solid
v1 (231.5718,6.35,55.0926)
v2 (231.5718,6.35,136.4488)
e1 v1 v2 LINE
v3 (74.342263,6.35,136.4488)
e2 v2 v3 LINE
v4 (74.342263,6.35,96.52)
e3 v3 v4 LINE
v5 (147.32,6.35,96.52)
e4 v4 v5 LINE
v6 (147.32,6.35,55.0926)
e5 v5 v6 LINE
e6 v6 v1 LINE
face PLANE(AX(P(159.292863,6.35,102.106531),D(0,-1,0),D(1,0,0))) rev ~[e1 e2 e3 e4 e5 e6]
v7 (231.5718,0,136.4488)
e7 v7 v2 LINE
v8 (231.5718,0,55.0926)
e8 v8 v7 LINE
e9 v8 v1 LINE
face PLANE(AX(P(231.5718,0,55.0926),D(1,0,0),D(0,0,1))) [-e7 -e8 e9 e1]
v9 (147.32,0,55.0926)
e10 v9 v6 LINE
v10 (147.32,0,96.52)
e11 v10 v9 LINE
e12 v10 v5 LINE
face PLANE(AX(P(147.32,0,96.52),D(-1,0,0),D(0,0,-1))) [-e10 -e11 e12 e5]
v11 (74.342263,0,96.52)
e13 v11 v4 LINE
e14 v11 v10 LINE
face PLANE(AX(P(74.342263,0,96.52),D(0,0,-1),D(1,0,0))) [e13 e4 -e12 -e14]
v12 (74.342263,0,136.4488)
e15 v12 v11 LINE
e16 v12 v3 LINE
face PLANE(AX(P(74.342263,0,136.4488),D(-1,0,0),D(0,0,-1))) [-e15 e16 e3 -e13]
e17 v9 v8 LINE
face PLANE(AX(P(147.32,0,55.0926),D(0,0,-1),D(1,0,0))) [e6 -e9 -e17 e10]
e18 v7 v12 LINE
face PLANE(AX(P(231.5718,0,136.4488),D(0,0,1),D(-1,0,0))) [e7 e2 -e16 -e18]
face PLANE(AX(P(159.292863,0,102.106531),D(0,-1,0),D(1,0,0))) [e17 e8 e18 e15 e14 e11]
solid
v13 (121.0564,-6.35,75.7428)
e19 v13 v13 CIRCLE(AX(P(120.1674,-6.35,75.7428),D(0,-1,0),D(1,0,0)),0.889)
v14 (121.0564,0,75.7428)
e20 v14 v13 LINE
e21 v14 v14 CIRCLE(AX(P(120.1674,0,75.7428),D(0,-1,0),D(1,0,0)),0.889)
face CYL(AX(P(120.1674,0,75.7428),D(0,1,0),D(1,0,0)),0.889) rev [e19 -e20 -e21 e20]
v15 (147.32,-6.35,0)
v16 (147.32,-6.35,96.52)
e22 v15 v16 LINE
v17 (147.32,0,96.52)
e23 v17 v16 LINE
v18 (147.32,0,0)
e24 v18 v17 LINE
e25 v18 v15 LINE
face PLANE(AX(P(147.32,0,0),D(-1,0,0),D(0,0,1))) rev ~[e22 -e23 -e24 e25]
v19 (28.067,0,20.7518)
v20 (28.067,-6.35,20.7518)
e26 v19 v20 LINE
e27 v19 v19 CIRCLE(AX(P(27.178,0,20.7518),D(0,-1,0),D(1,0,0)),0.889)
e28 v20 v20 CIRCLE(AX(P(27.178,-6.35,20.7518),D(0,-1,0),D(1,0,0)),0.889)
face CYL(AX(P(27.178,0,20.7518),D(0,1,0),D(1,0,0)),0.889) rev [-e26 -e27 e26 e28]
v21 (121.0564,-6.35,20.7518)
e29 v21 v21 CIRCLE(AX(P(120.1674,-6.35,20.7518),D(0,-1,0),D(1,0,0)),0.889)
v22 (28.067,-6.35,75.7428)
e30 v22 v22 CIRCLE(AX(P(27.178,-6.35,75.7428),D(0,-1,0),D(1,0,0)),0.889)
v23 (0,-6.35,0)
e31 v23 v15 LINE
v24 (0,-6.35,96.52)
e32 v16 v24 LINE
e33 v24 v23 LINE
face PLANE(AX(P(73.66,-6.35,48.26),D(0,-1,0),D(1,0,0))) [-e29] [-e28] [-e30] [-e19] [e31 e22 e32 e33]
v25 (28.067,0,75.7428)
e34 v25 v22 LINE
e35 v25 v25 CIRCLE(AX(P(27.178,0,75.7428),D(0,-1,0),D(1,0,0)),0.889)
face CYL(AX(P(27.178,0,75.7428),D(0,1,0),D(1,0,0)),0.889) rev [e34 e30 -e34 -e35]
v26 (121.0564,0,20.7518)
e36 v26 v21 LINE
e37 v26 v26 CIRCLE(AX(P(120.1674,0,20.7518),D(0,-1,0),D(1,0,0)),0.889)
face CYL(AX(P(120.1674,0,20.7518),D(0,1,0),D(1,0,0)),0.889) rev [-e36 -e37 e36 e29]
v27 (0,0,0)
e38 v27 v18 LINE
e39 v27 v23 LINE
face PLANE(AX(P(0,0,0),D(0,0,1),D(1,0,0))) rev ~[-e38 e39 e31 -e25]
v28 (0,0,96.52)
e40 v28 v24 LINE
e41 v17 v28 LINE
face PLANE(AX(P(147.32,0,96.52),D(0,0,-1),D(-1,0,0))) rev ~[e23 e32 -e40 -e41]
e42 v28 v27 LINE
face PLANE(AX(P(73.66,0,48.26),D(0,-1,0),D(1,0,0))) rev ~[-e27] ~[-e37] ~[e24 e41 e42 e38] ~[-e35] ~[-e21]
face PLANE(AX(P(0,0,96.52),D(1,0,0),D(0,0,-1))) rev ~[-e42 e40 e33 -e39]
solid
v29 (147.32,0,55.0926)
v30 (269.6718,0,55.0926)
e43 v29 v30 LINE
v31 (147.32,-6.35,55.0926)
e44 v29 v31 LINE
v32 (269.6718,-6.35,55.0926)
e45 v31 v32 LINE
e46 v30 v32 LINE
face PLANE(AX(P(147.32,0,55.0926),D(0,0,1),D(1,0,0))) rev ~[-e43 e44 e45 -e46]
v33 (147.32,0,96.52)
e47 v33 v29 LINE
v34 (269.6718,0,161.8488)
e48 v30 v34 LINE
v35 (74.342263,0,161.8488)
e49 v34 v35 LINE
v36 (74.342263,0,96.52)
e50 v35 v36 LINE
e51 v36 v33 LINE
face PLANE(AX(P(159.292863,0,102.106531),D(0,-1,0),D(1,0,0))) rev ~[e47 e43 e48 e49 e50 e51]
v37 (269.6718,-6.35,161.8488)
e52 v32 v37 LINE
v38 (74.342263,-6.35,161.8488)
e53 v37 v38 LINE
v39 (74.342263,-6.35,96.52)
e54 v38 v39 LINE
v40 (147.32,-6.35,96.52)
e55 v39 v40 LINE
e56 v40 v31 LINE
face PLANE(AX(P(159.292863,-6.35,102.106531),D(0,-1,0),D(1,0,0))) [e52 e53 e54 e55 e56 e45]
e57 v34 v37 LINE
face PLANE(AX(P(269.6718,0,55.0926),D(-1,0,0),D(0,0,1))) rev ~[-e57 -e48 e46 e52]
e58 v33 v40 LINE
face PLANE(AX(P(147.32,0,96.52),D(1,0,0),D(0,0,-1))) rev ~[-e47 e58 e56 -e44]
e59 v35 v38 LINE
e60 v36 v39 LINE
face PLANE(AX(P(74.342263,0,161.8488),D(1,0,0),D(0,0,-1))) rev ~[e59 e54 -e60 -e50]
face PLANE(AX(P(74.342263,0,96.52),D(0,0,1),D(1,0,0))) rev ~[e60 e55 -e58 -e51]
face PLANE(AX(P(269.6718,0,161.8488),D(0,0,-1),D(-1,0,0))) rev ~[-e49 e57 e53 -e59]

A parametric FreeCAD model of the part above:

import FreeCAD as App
import Part
import Sketcher

V = App.Vector
Q = App.Units.Quantity

doc = App.newDocument("Part")
body = doc.addObject("PartDesign::Body", "Body")

# Sketch on XZ plane
sketch1 = body.newObject("Sketcher::SketchObject", "Sketch")
sketch1.AttachmentSupport = (doc.getObject("XZ_Plane"), [""])
sketch1.MapMode = "FlatFace"
sketch1.addGeometry(Part.LineSegment(V(0, 0, 0), V(147.3, 0, 0)), False)
sketch1.addGeometry(Part.LineSegment(V(147.3, 0, 0), V(147.3, 96.5, 0)), False)
sketch1.addGeometry(Part.LineSegment(V(147.3, 96.5, 0), V(0, 96.5, 0)), False)
sketch1.addGeometry(Part.LineSegment(V(0, 96.5, 0), V(0, 0, 0)), False)
sketch1.addGeometry(Part.Circle(V(27.2, 20.8, 0), V(0, 0, 1), 0.9), False)
sketch1.addGeometry(Part.Circle(V(120.2, 20.8, 0), V(0, 0, 1), 0.9), False)
sketch1.addGeometry(Part.Circle(V(27.2, 75.7, 0), V(0, 0, 1), 0.9), False)
sketch1.addGeometry(Part.Circle(V(120.2, 75.7, 0), V(0, 0, 1), 0.9), False)
sketch1.addConstraint(Sketcher.Constraint("Coincident", 0, 2, 1, 1))
sketch1.addConstraint(Sketcher.Constraint("Coincident", 1, 2, 2, 1))
sketch1.addConstraint(Sketcher.Constraint("Coincident", 2, 2, 3, 1))
sketch1.addConstraint(Sketcher.Constraint("Coincident", 3, 2, 0, 1))
sketch1.addConstraint(Sketcher.Constraint("Horizontal", 0))
sketch1.addConstraint(Sketcher.Constraint("Vertical", 1))
sketch1.addConstraint(Sketcher.Constraint("Horizontal", 2))
sketch1.addConstraint(Sketcher.Constraint("Vertical", 3))
sketch1.addConstraint(Sketcher.Constraint("Coincident", 3, 2, -1, 1))
sketch1.addConstraint(Sketcher.Constraint("Equal", 4, 5))
sketch1.addConstraint(Sketcher.Constraint("Equal", 5, 6))
sketch1.addConstraint(Sketcher.Constraint("Equal", 6, 7))
sketch1.addConstraint(Sketcher.Constraint("Horizontal", 4, 3, 5, 3))
sketch1.addConstraint(Sketcher.Constraint("Horizontal", 6, 3, 7, 3))
sketch1.addConstraint(Sketcher.Constraint("Vertical", 4, 3, 6, 3))
sketch1.addConstraint(Sketcher.Constraint("Vertical", 5, 3, 7, 3))
sketch1.addConstraint(Sketcher.Constraint("Diameter", 4, Q("0.07 in")))
sketch1.addConstraint(Sketcher.Constraint("DistanceX", 0, 1, 0, 2, Q("5.8 in")))
sketch1.addConstraint(Sketcher.Constraint("DistanceY", 1, 1, 1, 2, Q("3.8 in")))
sketch1.addConstraint(Sketcher.Constraint("DistanceX", -1, 1, 4, 3, Q("1.07 in")))
sketch1.addConstraint(Sketcher.Constraint("DistanceY", -1, 1, 4, 3, Q("0.817 in")))
sketch1.addConstraint(Sketcher.Constraint("DistanceX", -1, 1, 5, 3, Q("4.731 in")))
sketch1.addConstraint(Sketcher.Constraint("DistanceY", -1, 1, 6, 3, Q("2.982 in")))
pad1 = body.newObject("PartDesign::Pad", "Pad")
pad1.Profile = sketch1
pad1.Length = Q("0.25 in")
body2 = doc.addObject("PartDesign::Body", "Body001")

# Sketch on XZ plane
sketch2 = body2.newObject("Sketcher::SketchObject", "Sketch001")
sketch2.AttachmentSupport = (doc.getObject("XZ_Plane001"), [""])
sketch2.MapMode = "FlatFace"
sketch2.addGeometry(Part.LineSegment(V(74, 97, 0), V(147, 97, 0)), False)
sketch2.addGeometry(Part.LineSegment(V(147, 97, 0), V(147, 55, 0)), False)
sketch2.addGeometry(Part.LineSegment(V(147, 55, 0), V(270, 55, 0)), False)
sketch2.addGeometry(Part.LineSegment(V(270, 55, 0), V(270, 162, 0)), False)
sketch2.addGeometry(Part.LineSegment(V(270, 162, 0), V(74, 162, 0)), False)
sketch2.addGeometry(Part.LineSegment(V(74, 162, 0), V(74, 97, 0)), False)
sketch2.addConstraint(Sketcher.Constraint("Coincident", 0, 2, 1, 1))
sketch2.addConstraint(Sketcher.Constraint("Coincident", 1, 2, 2, 1))
sketch2.addConstraint(Sketcher.Constraint("Coincident", 2, 2, 3, 1))
sketch2.addConstraint(Sketcher.Constraint("Coincident", 3, 2, 4, 1))
sketch2.addConstraint(Sketcher.Constraint("Coincident", 4, 2, 5, 1))
sketch2.addConstraint(Sketcher.Constraint("Coincident", 5, 2, 0, 1))
sketch2.addConstraint(Sketcher.Constraint("Horizontal", 0))
sketch2.addConstraint(Sketcher.Constraint("Vertical", 1))
sketch2.addConstraint(Sketcher.Constraint("Horizontal", 2))
sketch2.addConstraint(Sketcher.Constraint("Vertical", 3))
sketch2.addConstraint(Sketcher.Constraint("Horizontal", 4))
sketch2.addConstraint(Sketcher.Constraint("Vertical", 5))
sketch2.addConstraint(Sketcher.Constraint("DistanceX", -1, 1, 0, 2, Q("5.8 in")))
sketch2.addConstraint(Sketcher.Constraint("DistanceY", -1, 1, 0, 2, Q("3.8 in")))
sketch2.addConstraint(Sketcher.Constraint("DistanceX", 2, 1, 2, 2, Q("4.817 in")))
sketch2.addConstraint(Sketcher.Constraint("DistanceY", 1, 2, 1, 1, Q("1.631 in")))
sketch2.addConstraint(Sketcher.Constraint("DistanceY", 3, 1, 3, 2, Q("4.203 in")))
sketch2.addConstraint(Sketcher.Constraint("DistanceX", 0, 1, 0, 2, Q("72.977737 mm")))
pad2 = body2.newObject("PartDesign::Pad", "Pad001")
pad2.Profile = sketch2
pad2.Length = Q("0.25 in")
body3 = doc.addObject("PartDesign::Body", "Body002")

# Sketch on XZ plane
sketch3 = body3.newObject("Sketcher::SketchObject", "Sketch002")
sketch3.AttachmentSupport = (doc.getObject("XZ_Plane002"), [""])
sketch3.MapMode = "FlatFace"
sketch3.addGeometry(Part.LineSegment(V(74, 136, 0), V(74, 97, 0)), False)
sketch3.addGeometry(Part.LineSegment(V(74, 97, 0), V(147, 97, 0)), False)
sketch3.addGeometry(Part.LineSegment(V(147, 97, 0), V(147, 55, 0)), False)
sketch3.addGeometry(Part.LineSegment(V(147, 55, 0), V(232, 55, 0)), False)
sketch3.addGeometry(Part.LineSegment(V(232, 55, 0), V(232, 136, 0)), False)
sketch3.addGeometry(Part.LineSegment(V(232, 136, 0), V(74, 136, 0)), False)
sketch3.addConstraint(Sketcher.Constraint("Coincident", 0, 2, 1, 1))
sketch3.addConstraint(Sketcher.Constraint("Coincident", 1, 2, 2, 1))
sketch3.addConstraint(Sketcher.Constraint("Coincident", 2, 2, 3, 1))
sketch3.addConstraint(Sketcher.Constraint("Coincident", 3, 2, 4, 1))
sketch3.addConstraint(Sketcher.Constraint("Coincident", 4, 2, 5, 1))
sketch3.addConstraint(Sketcher.Constraint("Coincident", 5, 2, 0, 1))
sketch3.addConstraint(Sketcher.Constraint("Vertical", 0))
sketch3.addConstraint(Sketcher.Constraint("Horizontal", 1))
sketch3.addConstraint(Sketcher.Constraint("Vertical", 2))
sketch3.addConstraint(Sketcher.Constraint("Horizontal", 3))
sketch3.addConstraint(Sketcher.Constraint("Vertical", 4))
sketch3.addConstraint(Sketcher.Constraint("Horizontal", 5))
sketch3.addConstraint(Sketcher.Constraint("DistanceY", -1, 1, 0, 2, Q("3.8 in")))
sketch3.addConstraint(Sketcher.Constraint("DistanceX", -1, 1, 1, 2, Q("5.8 in")))
sketch3.addConstraint(Sketcher.Constraint("DistanceX", 3, 1, 3, 2, Q("3.317 in")))
sketch3.addConstraint(Sketcher.Constraint("DistanceY", 0, 2, 0, 1, Q("1.572 in")))
sketch3.addConstraint(Sketcher.Constraint("DistanceY", 2, 2, 2, 1, Q("1.631 in")))
sketch3.addConstraint(Sketcher.Constraint("DistanceX", 1, 1, 1, 2, Q("72.977737 mm")))
pad3 = body3.newObject("PartDesign::Pad", "Pad002")
pad3.Profile = sketch3
pad3.Length = Q("0.25 in")
pad3.Reversed = True

doc.recompute()
